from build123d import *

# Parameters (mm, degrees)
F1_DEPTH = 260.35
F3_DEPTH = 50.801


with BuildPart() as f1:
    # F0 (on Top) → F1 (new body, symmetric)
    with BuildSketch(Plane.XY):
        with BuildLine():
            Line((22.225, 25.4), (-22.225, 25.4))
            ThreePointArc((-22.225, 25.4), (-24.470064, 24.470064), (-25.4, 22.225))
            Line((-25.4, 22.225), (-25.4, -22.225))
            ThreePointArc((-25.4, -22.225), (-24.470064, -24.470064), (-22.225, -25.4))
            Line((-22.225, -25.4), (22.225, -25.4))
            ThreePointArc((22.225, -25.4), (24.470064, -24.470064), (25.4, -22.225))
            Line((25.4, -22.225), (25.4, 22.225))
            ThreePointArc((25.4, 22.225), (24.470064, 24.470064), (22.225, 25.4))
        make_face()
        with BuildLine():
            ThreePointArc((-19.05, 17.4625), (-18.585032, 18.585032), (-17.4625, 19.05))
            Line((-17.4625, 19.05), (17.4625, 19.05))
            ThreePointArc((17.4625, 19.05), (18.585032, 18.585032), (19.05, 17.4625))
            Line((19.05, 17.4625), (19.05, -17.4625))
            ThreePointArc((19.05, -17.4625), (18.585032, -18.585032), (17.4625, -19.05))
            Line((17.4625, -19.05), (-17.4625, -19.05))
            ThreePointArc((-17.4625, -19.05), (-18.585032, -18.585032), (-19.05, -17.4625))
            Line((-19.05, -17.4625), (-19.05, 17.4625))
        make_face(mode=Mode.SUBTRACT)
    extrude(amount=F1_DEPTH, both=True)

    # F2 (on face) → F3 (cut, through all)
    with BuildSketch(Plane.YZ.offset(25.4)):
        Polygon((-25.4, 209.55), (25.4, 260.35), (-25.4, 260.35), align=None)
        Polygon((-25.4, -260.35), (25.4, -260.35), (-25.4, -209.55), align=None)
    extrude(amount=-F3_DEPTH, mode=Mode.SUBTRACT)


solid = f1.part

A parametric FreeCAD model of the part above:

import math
import FreeCAD as App
import Part
import Sketcher
Q = App.Units.Quantity


def add_polygon(sketch, points):
    """Adds a closed chain of lines whose ends are joined by coincident constraints."""
    first, n = sketch.GeometryCount, len(points)
    for a, b in zip(points, points[1:] + points[:1]):
        sketch.addGeometry(Part.LineSegment(App.Vector(*a, 0), App.Vector(*b, 0)), False)
    for i in range(n):
        sketch.addConstraint(Sketcher.Constraint("Coincident", first + i, 2, first + (i + 1) % n, 1))

doc = App.newDocument("Part")
body = doc.addObject("PartDesign::Body", "Body")

# Sketch on XY plane
sketch1 = body.newObject("Sketcher::SketchObject", "Sketch")
sketch1.AttachmentSupport = (doc.getObject("XY_Plane"), [""])
sketch1.MapMode = "FlatFace"
sketch1.addGeometry([
    Part.LineSegment(App.Vector(22.2, 25.4, 0), App.Vector(-22.2, 25.4, 0)),  # 0
    Part.ArcOfCircle(Part.Circle(App.Vector(-22.2, 22.2, 0), App.Vector(0, 0, 1), 3.2), math.radians(90), math.radians(180)),  # 1
    Part.LineSegment(App.Vector(-25.4, 22.2, 0), App.Vector(-25.4, -22.2, 0)),  # 2
    Part.ArcOfCircle(Part.Circle(App.Vector(-22.2, -22.2, 0), App.Vector(0, 0, 1), 3.2), math.radians(-180), math.radians(-90)),  # 3
    Part.LineSegment(App.Vector(-22.2, -25.4, 0), App.Vector(22.2, -25.4, 0)),  # 4
    Part.ArcOfCircle(Part.Circle(App.Vector(22.2, -22.2, 0), App.Vector(0, 0, 1), 3.2), math.radians(-90), math.radians(0)),  # 5
    Part.LineSegment(App.Vector(25.4, -22.2, 0), App.Vector(25.4, 22.2, 0)),  # 6
    Part.ArcOfCircle(Part.Circle(App.Vector(22.2, 22.2, 0), App.Vector(0, 0, 1), 3.2), math.radians(0), math.radians(90)),  # 7
    Part.LineSegment(App.Vector(-19.1, -17.5, 0), App.Vector(-19.1, 17.5, 0)),  # 8
    Part.ArcOfCircle(Part.Circle(App.Vector(-17.5, 17.5, 0), App.Vector(0, 0, 1), 1.6), math.radians(90), math.radians(180)),  # 9
    Part.LineSegment(App.Vector(-17.5, 19.1, 0), App.Vector(17.5, 19.1, 0)),  # 10
    Part.ArcOfCircle(Part.Circle(App.Vector(17.5, 17.5, 0), App.Vector(0, 0, 1), 1.6), math.radians(0), math.radians(90)),  # 11
    Part.LineSegment(App.Vector(19.1, 17.5, 0), App.Vector(19.1, -17.5, 0)),  # 12
    Part.ArcOfCircle(Part.Circle(App.Vector(17.5, -17.5, 0), App.Vector(0, 0, 1), 1.6), math.radians(-90), math.radians(0)),  # 13
    Part.LineSegment(App.Vector(17.5, -19.1, 0), App.Vector(-17.5, -19.1, 0)),  # 14
    Part.ArcOfCircle(Part.Circle(App.Vector(-17.5, -17.5, 0), App.Vector(0, 0, 1), 1.6), math.radians(-180), math.radians(-90)),  # 15
], False)
sketch1.addConstraint([
    Sketcher.Constraint("Tangent", 0, 2, 1, 1),
    Sketcher.Constraint("Tangent", 1, 2, 2, 1),
    Sketcher.Constraint("Tangent", 2, 2, 3, 1),
    Sketcher.Constraint("Tangent", 3, 2, 4, 1),
    Sketcher.Constraint("Tangent", 4, 2, 5, 1),
    Sketcher.Constraint("Tangent", 5, 2, 6, 1),
    Sketcher.Constraint("Tangent", 6, 2, 7, 1),
    Sketcher.Constraint("Tangent", 7, 2, 0, 1),
    Sketcher.Constraint("Tangent", 8, 2, 9, 2),
    Sketcher.Constraint("Tangent", 9, 1, 10, 1),
    Sketcher.Constraint("Tangent", 10, 2, 11, 2),
    Sketcher.Constraint("Tangent", 11, 1, 12, 1),
    Sketcher.Constraint("Tangent", 12, 2, 13, 2),
    Sketcher.Constraint("Tangent", 13, 1, 14, 1),
    Sketcher.Constraint("Tangent", 14, 2, 15, 2),
    Sketcher.Constraint("Tangent", 15, 1, 8, 1),
    Sketcher.Constraint("Horizontal", 0),
    Sketcher.Constraint("Vertical", 2),
    Sketcher.Constraint("Horizontal", 4),
    Sketcher.Constraint("Vertical", 6),
    Sketcher.Constraint("Vertical", 8),
    Sketcher.Constraint("Horizontal", 10),
    Sketcher.Constraint("Vertical", 12),
    Sketcher.Constraint("Horizontal", 14),
    Sketcher.Constraint("Equal", 1, 3),
    Sketcher.Constraint("Equal", 3, 5),
    Sketcher.Constraint("Equal", 5, 7),
    Sketcher.Constraint("Equal", 9, 11),
    Sketcher.Constraint("Equal", 11, 13),
    Sketcher.Constraint("Equal", 13, 15),
    Sketcher.Constraint("Symmetric", 1, 3, 5, 3, -1, 1),
    Sketcher.Constraint("Symmetric", 9, 3, 13, 3, -1, 1),
    Sketcher.Constraint("Equal", 4, 2),
    Sketcher.Constraint("Equal", 14, 8),
    Sketcher.Constraint("DistanceY", -1, 1, 0, 2, Q("1 in")),
    Sketcher.Constraint("Radius", 1, Q("0.125 in")),
    Sketcher.Constraint("Radius", 9, Q("0.0625 in")),
    Sketcher.Constraint("DistanceX", 10, 1, 10, 2, Q("1.375 in")),
])
pad1 = body.newObject("PartDesign::Pad", "Pad")
pad1.Profile = sketch1
pad1.Length = Q("20.5 in")
pad1.Midplane = True

# Sketch on YZ plane
sketch2 = body.newObject("Sketcher::SketchObject", "Sketch001")
sketch2.AttachmentSupport = (doc.getObject("YZ_Plane"), [""])
sketch2.MapMode = "FlatFace"
sketch2.AttachmentOffset = App.Placement(App.Vector(0, 0, 1 * 25.4), App.Rotation())
add_polygon(sketch2, [(-25, 210), (25, 260), (-25, 260)])  # lines 0-2
add_polygon(sketch2, [(-25, -260), (25, -260), (-25, -210)])  # lines 3-5
sketch2.addConstraint([
    Sketcher.Constraint("Horizontal", 1),
    Sketcher.Constraint("Vertical", 2),
    Sketcher.Constraint("Horizontal", 3),
    Sketcher.Constraint("Vertical", 5),
    Sketcher.Constraint("Symmetric", 1, 2, 3, 2, -1, 1),
    Sketcher.Constraint("Symmetric", 2, 2, 4, 2, -1),
    Sketcher.Constraint("Perpendicular", 0, 4),
    Sketcher.Constraint("Vertical", 0, 2, 3, 2),
    Sketcher.Constraint("DistanceX", 1, 2, 1, 1, Q("2 in")),
    Sketcher.Constraint("DistanceY", 3, 2, 2, 2, Q("18.5 in")),
])
pocket1 = body.newObject("PartDesign::Pocket", "Pocket")
pocket1.Profile = sketch2
pocket1.Type = "ThroughAll"

doc.recompute()
